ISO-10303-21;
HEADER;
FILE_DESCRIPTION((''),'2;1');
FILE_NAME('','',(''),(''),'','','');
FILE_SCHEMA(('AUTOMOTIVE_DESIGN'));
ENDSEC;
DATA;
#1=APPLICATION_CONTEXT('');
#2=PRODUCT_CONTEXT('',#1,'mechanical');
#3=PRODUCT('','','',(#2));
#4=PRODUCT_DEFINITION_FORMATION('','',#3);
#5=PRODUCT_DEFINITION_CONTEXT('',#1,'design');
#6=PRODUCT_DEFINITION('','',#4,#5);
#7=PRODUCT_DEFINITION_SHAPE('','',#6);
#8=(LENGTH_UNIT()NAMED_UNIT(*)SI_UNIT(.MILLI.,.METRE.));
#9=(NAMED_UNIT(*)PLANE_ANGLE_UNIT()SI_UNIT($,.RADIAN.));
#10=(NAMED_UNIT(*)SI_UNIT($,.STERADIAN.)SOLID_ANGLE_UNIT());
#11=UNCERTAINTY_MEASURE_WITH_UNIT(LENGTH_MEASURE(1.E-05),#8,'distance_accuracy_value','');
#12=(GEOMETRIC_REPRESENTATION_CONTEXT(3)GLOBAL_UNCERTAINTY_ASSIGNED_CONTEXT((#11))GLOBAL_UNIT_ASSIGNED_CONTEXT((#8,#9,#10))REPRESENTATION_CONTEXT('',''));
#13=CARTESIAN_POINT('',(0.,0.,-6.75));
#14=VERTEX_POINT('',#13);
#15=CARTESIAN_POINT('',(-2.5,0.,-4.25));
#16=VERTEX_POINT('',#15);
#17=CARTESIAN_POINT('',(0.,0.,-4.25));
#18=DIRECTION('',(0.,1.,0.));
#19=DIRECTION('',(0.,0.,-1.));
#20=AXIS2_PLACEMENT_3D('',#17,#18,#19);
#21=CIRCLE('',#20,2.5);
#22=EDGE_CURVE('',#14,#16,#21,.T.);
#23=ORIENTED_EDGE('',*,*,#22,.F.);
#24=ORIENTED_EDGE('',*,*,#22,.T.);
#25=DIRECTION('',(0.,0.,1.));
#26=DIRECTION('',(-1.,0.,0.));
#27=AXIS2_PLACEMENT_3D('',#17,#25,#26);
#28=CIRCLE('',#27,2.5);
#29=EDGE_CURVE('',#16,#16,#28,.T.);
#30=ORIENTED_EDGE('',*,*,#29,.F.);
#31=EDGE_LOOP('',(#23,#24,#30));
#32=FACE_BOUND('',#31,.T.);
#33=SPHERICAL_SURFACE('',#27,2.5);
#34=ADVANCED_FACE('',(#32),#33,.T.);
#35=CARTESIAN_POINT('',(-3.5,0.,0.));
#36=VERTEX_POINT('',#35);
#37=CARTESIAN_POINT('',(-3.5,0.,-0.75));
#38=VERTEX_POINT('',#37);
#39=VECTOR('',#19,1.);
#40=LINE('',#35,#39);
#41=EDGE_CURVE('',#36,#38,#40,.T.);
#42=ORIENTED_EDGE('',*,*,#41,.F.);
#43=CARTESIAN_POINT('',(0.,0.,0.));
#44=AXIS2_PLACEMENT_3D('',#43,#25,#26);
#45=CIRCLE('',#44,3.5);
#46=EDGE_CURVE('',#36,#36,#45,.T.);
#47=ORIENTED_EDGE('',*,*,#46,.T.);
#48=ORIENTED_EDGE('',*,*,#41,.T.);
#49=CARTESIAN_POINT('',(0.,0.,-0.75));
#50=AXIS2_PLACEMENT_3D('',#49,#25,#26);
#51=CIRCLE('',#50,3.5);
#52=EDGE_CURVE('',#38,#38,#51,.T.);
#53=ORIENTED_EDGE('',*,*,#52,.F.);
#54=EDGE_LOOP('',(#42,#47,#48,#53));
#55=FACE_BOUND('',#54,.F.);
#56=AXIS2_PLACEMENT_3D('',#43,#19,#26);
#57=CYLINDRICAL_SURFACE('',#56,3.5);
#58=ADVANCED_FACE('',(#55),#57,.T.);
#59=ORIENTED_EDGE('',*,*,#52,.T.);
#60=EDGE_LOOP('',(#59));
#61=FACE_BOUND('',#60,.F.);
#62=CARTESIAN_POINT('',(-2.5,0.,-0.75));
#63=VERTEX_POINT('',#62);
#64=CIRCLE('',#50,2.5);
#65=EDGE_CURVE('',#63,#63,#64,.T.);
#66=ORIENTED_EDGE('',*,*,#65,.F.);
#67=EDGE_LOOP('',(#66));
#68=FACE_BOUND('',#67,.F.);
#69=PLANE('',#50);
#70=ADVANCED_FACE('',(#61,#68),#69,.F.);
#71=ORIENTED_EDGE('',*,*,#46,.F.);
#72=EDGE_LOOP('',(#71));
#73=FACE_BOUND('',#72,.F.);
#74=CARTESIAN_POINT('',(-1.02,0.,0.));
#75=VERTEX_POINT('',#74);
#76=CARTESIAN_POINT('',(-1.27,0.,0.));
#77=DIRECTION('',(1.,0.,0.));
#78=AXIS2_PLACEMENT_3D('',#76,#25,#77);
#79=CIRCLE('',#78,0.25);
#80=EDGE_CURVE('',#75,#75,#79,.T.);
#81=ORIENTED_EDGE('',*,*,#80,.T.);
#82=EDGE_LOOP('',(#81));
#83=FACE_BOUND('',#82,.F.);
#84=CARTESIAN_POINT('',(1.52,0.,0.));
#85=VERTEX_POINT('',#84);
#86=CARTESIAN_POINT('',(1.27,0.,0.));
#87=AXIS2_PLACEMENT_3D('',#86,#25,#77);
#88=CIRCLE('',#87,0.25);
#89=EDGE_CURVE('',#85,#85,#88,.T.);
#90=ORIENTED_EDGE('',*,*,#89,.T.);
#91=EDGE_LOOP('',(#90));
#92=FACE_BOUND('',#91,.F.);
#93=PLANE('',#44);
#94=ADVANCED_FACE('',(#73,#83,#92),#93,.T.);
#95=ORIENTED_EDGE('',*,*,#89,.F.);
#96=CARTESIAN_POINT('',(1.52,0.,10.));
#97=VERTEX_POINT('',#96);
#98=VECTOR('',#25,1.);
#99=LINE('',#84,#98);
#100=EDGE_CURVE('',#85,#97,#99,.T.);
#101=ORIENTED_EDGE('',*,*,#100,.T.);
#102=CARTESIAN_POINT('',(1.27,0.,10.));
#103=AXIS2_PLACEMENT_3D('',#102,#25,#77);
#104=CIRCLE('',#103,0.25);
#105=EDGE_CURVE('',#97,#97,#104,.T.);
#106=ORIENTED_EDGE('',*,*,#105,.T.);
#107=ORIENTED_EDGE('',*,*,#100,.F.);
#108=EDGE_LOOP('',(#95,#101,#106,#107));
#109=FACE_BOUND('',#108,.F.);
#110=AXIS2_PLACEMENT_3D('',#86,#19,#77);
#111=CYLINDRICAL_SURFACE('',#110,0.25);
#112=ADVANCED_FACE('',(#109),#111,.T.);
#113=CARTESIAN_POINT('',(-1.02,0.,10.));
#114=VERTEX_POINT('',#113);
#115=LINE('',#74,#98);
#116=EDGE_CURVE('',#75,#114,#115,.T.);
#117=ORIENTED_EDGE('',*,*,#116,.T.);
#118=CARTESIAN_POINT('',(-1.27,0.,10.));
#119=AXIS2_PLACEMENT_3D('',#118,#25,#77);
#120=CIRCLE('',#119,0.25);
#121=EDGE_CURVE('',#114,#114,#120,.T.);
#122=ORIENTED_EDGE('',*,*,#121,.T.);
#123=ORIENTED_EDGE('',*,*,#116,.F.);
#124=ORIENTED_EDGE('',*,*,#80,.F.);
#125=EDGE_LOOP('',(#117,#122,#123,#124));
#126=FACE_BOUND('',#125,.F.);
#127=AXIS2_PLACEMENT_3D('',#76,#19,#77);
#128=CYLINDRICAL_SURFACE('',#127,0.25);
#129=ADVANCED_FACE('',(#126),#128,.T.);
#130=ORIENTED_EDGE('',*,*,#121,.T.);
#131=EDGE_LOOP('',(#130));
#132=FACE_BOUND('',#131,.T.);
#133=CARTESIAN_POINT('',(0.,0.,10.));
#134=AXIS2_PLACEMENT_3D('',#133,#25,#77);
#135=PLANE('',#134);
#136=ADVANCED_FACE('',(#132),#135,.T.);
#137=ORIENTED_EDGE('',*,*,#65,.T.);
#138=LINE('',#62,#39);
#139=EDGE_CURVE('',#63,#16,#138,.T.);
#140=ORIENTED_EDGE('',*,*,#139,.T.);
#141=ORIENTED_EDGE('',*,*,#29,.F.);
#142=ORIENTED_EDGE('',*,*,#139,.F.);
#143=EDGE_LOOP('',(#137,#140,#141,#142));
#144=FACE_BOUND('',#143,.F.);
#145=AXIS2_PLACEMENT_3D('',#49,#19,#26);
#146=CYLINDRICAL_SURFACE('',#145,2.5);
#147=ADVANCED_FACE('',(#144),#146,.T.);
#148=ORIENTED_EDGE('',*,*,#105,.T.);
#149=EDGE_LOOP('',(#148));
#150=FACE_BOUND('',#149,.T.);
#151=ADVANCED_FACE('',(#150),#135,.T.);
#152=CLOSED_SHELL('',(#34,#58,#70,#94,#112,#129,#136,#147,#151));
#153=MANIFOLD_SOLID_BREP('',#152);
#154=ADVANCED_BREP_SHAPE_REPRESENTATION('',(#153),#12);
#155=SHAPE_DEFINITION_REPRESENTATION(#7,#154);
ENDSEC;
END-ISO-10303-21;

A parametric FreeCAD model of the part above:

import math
import FreeCAD as App
import Part
import Sketcher

doc = App.newDocument("Part")
params = doc.addObject("Spreadsheet::Sheet", "Params")
for row, (alias, value) in enumerate([
    ("sketch1_radius", "2.5 mm"),
    ("sketch1_width", "1 mm"),
    ("sketch1_height", "0.75 mm"),
    ("revolution_angle", "360 deg"),
    ("sketch2_diameter", "0.5 mm"),
    ("pad1_length", "10 mm"),
], start=1):
    params.set(f"A{row}", alias)
    params.set(f"B{row}", "=" + value)
    params.setAlias(f"B{row}", alias)

body = doc.addObject("PartDesign::Body", "Body")

# Sketch on XZ plane
sketch1 = doc.addObject("Sketcher::SketchObject", "Sketch")
body.addObject(sketch1)
sketch1.AttachmentSupport = (doc.XZ_Plane, [""])
sketch1.MapMode = "FlatFace"
sketch1.addGeometry(Part.LineSegment(App.Vector(-3.5, 0, 0), App.Vector(0, 0, 0)), False)
sketch1.addGeometry(Part.LineSegment(App.Vector(0, 0, 0), App.Vector(0, -6.8, 0)), False)
sketch1.addGeometry(Part.ArcOfCircle(Part.Circle(App.Vector(0, -4.2, 0), App.Vector(0, 0, 1), 2.5), math.radians(180), math.radians(270)), False)
sketch1.addGeometry(Part.LineSegment(App.Vector(-2.5, -4.2, 0), App.Vector(-2.5, -0.8, 0)), False)
sketch1.addGeometry(Part.LineSegment(App.Vector(-2.5, -0.8, 0), App.Vector(-3.5, -0.8, 0)), False)
sketch1.addGeometry(Part.LineSegment(App.Vector(-3.5, -0.8, 0), App.Vector(-3.5, 0, 0)), False)
sketch1.addConstraint(Sketcher.Constraint("Coincident", 0, 2, 1, 1))
sketch1.addConstraint(Sketcher.Constraint("Coincident", 1, 2, 2, 2))
sketch1.addConstraint(Sketcher.Constraint("Tangent", 2, 1, 3, 1))
sketch1.addConstraint(Sketcher.Constraint("Coincident", 3, 2, 4, 1))
sketch1.addConstraint(Sketcher.Constraint("Coincident", 4, 2, 5, 1))
sketch1.addConstraint(Sketcher.Constraint("Coincident", 5, 2, 0, 1))
sketch1.addConstraint(Sketcher.Constraint("Horizontal", 0))
sketch1.addConstraint(Sketcher.Constraint("Vertical", 1))
sketch1.addConstraint(Sketcher.Constraint("Vertical", 3))
sketch1.addConstraint(Sketcher.Constraint("Horizontal", 4))
sketch1.addConstraint(Sketcher.Constraint("Vertical", 5))
sketch1.addConstraint(Sketcher.Constraint("Coincident", 0, 2, -1, 1))
sketch1.addConstraint(Sketcher.Constraint("PointOnObject", 2, 3, -2))
sketch1.addConstraint(Sketcher.Constraint("Equal", 0, 3))
sketch1.addConstraint(Sketcher.Constraint("Radius", 2, 2.5))
sketch1.addConstraint(Sketcher.Constraint("DistanceX", 4, 2, 4, 1, 1.0))
sketch1.addConstraint(Sketcher.Constraint("DistanceY", 5, 1, 5, 2, 0.75))
sketch1.setExpression("Constraints[14]", "Params.sketch1_radius")
sketch1.setExpression("Constraints[15]", "Params.sketch1_width")
sketch1.setExpression("Constraints[16]", "Params.sketch1_height")
revolution = doc.addObject("PartDesign::Revolution", "Revolution")
body.addObject(revolution)
revolution.Profile = sketch1
revolution.ReferenceAxis = (sketch1, ["V_Axis"])
revolution.setExpression("Angle", "Params.revolution_angle")

# Sketch on XY plane
sketch2 = doc.addObject("Sketcher::SketchObject", "Sketch001")
body.addObject(sketch2)
sketch2.AttachmentSupport = (doc.XY_Plane, [""])
sketch2.MapMode = "FlatFace"
sketch2.addGeometry(Part.Circle(App.Vector(-1.27, 0, 0), App.Vector(0, 0, 1), 0.25), False)
sketch2.addGeometry(Part.Circle(App.Vector(1.27, 0, 0), App.Vector(0, 0, 1), 0.25), False)
sketch2.addConstraint(Sketcher.Constraint("Equal", 0, 1))
sketch2.addConstraint(Sketcher.Constraint("Symmetric", 0, 3, 1, 3, -1, 1))
sketch2.addConstraint(Sketcher.Constraint("PointOnObject", 0, 3, -1))
sketch2.addConstraint(Sketcher.Constraint("Diameter", 0, 0.5))
sketch2.addConstraint(Sketcher.Constraint("DistanceX", 0, 3, -1, 1, 1.27))
sketch2.setExpression("Constraints[3]", "Params.sketch2_diameter")
pad1 = doc.addObject("PartDesign::Pad", "Pad")
body.addObject(pad1)
pad1.Profile = sketch2
pad1.setExpression("Length", "Params.pad1_length")

doc.recompute()
